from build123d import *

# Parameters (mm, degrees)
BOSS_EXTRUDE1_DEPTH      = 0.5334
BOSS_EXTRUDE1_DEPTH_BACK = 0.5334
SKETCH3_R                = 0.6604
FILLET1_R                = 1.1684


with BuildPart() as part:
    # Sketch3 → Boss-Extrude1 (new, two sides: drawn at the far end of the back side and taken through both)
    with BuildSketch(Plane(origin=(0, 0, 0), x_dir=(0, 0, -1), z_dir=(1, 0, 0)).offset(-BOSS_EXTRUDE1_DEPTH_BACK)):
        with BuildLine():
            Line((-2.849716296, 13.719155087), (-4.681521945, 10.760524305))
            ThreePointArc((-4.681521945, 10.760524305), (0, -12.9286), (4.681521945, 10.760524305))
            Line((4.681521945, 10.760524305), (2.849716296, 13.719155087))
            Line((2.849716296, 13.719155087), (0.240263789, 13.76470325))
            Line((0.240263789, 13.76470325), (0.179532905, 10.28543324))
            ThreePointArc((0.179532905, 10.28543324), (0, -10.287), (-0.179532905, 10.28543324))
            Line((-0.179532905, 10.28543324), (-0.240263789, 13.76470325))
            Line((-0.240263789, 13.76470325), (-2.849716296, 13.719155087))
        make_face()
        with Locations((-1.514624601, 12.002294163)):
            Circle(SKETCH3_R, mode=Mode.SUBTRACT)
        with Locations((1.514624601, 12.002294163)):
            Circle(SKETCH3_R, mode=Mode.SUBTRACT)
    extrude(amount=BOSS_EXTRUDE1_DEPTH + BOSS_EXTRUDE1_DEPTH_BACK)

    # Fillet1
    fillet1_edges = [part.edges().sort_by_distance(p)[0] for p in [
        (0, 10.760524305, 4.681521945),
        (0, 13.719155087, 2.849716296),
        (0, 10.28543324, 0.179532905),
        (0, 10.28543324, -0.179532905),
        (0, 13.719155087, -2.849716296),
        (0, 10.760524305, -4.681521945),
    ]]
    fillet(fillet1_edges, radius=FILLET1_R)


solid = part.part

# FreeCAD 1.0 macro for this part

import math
import FreeCAD as App
import Part
import Sketcher
from FreeCAD import Vector
Q = App.Units.Quantity


def edges_at(feature, points):
    """Names of the edges that pass closest to the given points."""
    edges = feature.Shape.Edges
    near = lambda p: min(range(len(edges)), key=lambda i: edges[i].distToShape(Part.Vertex(*p))[0])
    return sorted({f"Edge{near(p) + 1}" for p in points})

doc = App.newDocument("Part")
body = doc.addObject("PartDesign::Body", "Body")

# Sketch on YZ plane
sketch1 = body.newObject("Sketcher::SketchObject", "Sketch")
sketch1.AttachmentSupport = (doc.getObject("YZ_Plane"), [""])
sketch1.MapMode = "FlatFace"
sketch1.addGeometry([
    Part.LineSegment(Vector(13.72, 2.85, 0), Vector(10.76, 4.68, 0)),  # 0
    Part.ArcOfCircle(Part.Circle(Vector(-0.62, 0, 0), Vector(0, 0, 1), 12.31), math.radians(22), math.radians(338)),  # 1
    Part.LineSegment(Vector(10.76, -4.68, 0), Vector(13.72, -2.85, 0)),  # 2
    Part.LineSegment(Vector(13.72, -2.85, 0), Vector(13.76, -0.24, 0)),  # 3
    Part.LineSegment(Vector(13.76, -0.24, 0), Vector(10.29, -0.18, 0)),  # 4
    Part.ArcOfCircle(Part.Circle(Vector(0, 0, 0), Vector(0, 0, 1), 10.29), math.radians(1), math.radians(359)),  # 5
    Part.LineSegment(Vector(10.29, 0.18, 0), Vector(13.76, 0.24, 0)),  # 6
    Part.LineSegment(Vector(13.76, 0.24, 0), Vector(13.72, 2.85, 0)),  # 7
    Part.Circle(Vector(12, 1.51, 0), Vector(0, 0, 1), 0.66),  # 8
    Part.Circle(Vector(12, -1.51, 0), Vector(0, 0, 1), 0.66),  # 9
], False)
sketch1.addConstraint([
    Sketcher.Constraint("Coincident", 0, 2, 1, 1),
    Sketcher.Constraint("Coincident", 1, 2, 2, 1),
    Sketcher.Constraint("Coincident", 2, 2, 3, 1),
    Sketcher.Constraint("Coincident", 3, 2, 4, 1),
    Sketcher.Constraint("Coincident", 4, 2, 5, 2),
    Sketcher.Constraint("Coincident", 5, 1, 6, 1),
    Sketcher.Constraint("Coincident", 6, 2, 7, 1),
    Sketcher.Constraint("Coincident", 7, 2, 0, 1),
    Sketcher.Constraint("Coincident", 5, 3, -1, 1),
    Sketcher.Constraint("Equal", 8, 9),
    Sketcher.Constraint("Symmetric", 8, 3, 9, 3, -1),
    Sketcher.Constraint("Symmetric", 0, 2, 1, 2, -1),
    Sketcher.Constraint("Symmetric", 3, 2, 6, 2, -1),
    Sketcher.Constraint("Symmetric", 2, 2, 7, 2, -1),
    Sketcher.Constraint("Perpendicular", 3, 4),
    Sketcher.Constraint("Perpendicular", 6, 7),
    Sketcher.Constraint("Equal", 2, 4),
    Sketcher.Constraint("Diameter", 8, Q("0.052 in")),
    Sketcher.Constraint("Angle", 3, Q("89 deg")),
    Sketcher.Constraint("Radius", 5, Q("0.405 in")),
    Sketcher.Constraint("Distance", 0, Q("0.137 in")),
    Sketcher.Constraint("Radius", 1, 12.307151),
    Sketcher.Constraint("Distance", 3, 2.60985),
    Sketcher.Constraint("DistanceX", 1, 3, -1, 1, 0.621449),
    Sketcher.Constraint("DistanceY", -1, 1, 0, 2, 4.681522),
    Sketcher.Constraint("DistanceY", 9, 3, 8, 3, 3.029249),
    Sketcher.Constraint("DistanceX", 0, 2, 8, 3, 1.24177),
])
pad1 = body.newObject("PartDesign::Pad", "Pad")
pad1.Profile = sketch1
pad1.Type = "TwoLengths"
pad1.Length = Q("0.021 in")
pad1.Length2 = Q("0.021 in")
doc.recompute()

fillet = body.newObject("PartDesign::Fillet", "Fillet")
fillet.Base = (pad1, edges_at(pad1, [
    (0, 10.761, 4.682),
    (0, 13.719, 2.85),
    (0, 10.285, 0.18),
    (0, 10.285, -0.18),
    (0, 13.719, -2.85),
    (0, 10.761, -4.682),
]))
fillet.Radius = Q("0.046 in")

doc.recompute()
